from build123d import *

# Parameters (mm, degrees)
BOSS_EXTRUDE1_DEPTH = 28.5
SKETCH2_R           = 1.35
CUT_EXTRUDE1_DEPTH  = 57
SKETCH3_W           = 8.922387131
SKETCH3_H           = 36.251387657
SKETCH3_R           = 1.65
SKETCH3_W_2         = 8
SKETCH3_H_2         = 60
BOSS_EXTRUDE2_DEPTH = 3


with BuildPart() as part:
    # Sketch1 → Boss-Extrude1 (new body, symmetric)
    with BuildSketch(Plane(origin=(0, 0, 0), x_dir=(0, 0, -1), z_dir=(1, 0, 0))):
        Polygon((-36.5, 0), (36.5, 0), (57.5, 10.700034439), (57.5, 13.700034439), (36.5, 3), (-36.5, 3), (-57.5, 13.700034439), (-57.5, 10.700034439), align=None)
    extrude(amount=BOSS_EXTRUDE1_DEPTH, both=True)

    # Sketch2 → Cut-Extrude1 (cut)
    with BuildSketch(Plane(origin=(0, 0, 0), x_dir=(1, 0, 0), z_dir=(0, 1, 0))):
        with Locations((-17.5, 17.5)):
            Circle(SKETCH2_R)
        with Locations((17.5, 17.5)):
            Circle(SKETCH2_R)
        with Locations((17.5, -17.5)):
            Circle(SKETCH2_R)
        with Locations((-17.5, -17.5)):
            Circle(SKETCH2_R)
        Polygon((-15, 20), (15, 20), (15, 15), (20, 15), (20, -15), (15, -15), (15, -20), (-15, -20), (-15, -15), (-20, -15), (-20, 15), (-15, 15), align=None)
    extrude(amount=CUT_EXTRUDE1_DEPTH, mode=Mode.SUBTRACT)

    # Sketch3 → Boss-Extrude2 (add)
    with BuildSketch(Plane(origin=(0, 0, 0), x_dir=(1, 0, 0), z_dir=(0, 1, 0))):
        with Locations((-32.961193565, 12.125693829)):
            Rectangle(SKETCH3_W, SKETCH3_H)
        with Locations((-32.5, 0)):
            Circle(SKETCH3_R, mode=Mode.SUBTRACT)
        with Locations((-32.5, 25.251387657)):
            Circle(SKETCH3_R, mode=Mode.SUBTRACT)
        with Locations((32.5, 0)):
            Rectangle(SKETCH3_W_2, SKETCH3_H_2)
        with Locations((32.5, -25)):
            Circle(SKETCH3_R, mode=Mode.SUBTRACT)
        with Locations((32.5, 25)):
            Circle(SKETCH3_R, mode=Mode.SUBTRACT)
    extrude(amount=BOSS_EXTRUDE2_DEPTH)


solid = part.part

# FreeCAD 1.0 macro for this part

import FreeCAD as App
import Part
import Sketcher
from FreeCAD import Vector
Q = App.Units.Quantity


def add_polygon(sketch, points):
    """Adds a closed chain of lines whose ends are joined by coincident constraints."""
    first, n = sketch.GeometryCount, len(points)
    for a, b in zip(points, points[1:] + points[:1]):
        sketch.addGeometry(Part.LineSegment(App.Vector(*a, 0), App.Vector(*b, 0)), False)
    for i in range(n):
        sketch.addConstraint(Sketcher.Constraint("Coincident", first + i, 2, first + (i + 1) % n, 1))

doc = App.newDocument("Part")
body = doc.addObject("PartDesign::Body", "Body")

# Sketch on YZ plane
sketch1 = body.newObject("Sketcher::SketchObject", "Sketch")
sketch1.AttachmentSupport = (doc.getObject("YZ_Plane"), [""])
sketch1.MapMode = "FlatFace"
add_polygon(sketch1, [(0, 36.5), (0, -36.5), (10.700034, -57.5), (13.700034, -57.5), (3, -36.5), (3, 36.5), (13.700034, 57.5), (10.700034, 57.5)])  # lines 0-7
sketch1.addConstraint(Sketcher.Constraint("Vertical", 0))
sketch1.addConstraint(Sketcher.Constraint("Horizontal", 2))
sketch1.addConstraint(Sketcher.Constraint("Vertical", 4))
sketch1.addConstraint(Sketcher.Constraint("Horizontal", 6))
sketch1.addConstraint(Sketcher.Constraint("Symmetric", 0, 2, 7, 2, -1, 1))
sketch1.addConstraint(Sketcher.Constraint("Symmetric", 2, 2, 5, 2, -1))
sketch1.addConstraint(Sketcher.Constraint("Parallel", 1, 3))
sketch1.addConstraint(Sketcher.Constraint("Parallel", 5, 7))
sketch1.addConstraint(Sketcher.Constraint("Horizontal", 0, 2, 3, 2))
sketch1.addConstraint(Sketcher.Constraint("Horizontal", 4, 2, 7, 2))
sketch1.addConstraint(Sketcher.Constraint("DistanceX", 2, 1, 2, 2, 3.0))
sketch1.addConstraint(Sketcher.Constraint("DistanceY", 0, 2, 0, 1, 73.0))
sketch1.addConstraint(Sketcher.Constraint("Angle", 1, Q("-63 deg")))
sketch1.addConstraint(Sketcher.Constraint("DistanceY", 1, 2, 0, 2, 21.0))
pad1 = body.newObject("PartDesign::Pad", "Pad")
pad1.Profile = sketch1
pad1.Length = 57
pad1.Midplane = True

# Sketch on XZ plane
sketch2 = body.newObject("Sketcher::SketchObject", "Sketch001")
sketch2.AttachmentSupport = (doc.getObject("XZ_Plane"), [""])
sketch2.MapMode = "FlatFace"
sketch2.addGeometry(Part.Circle(Vector(-17.5, -17.5, 0), Vector(0, 0, 1), 1.4), False)  # 0
sketch2.addGeometry(Part.Circle(Vector(17.5, -17.5, 0), Vector(0, 0, 1), 1.4), False)  # 1
sketch2.addGeometry(Part.Circle(Vector(17.5, 17.5, 0), Vector(0, 0, 1), 1.4), False)  # 2
sketch2.addGeometry(Part.Circle(Vector(-17.5, 17.5, 0), Vector(0, 0, 1), 1.4), False)  # 3
add_polygon(sketch2, [(15, -20), (-15, -20), (-15, -15), (-20, -15), (-20, 15), (-15, 15), (-15, 20), (15, 20), (15, 15), (20, 15), (20, -15), (15, -15)])  # lines 4-15
sketch2.addConstraint(Sketcher.Constraint("Horizontal", 4))
sketch2.addConstraint(Sketcher.Constraint("Vertical", 5))
sketch2.addConstraint(Sketcher.Constraint("Horizontal", 6))
sketch2.addConstraint(Sketcher.Constraint("Vertical", 7))
sketch2.addConstraint(Sketcher.Constraint("Horizontal", 8))
sketch2.addConstraint(Sketcher.Constraint("Vertical", 9))
sketch2.addConstraint(Sketcher.Constraint("Horizontal", 10))
sketch2.addConstraint(Sketcher.Constraint("Vertical", 11))
sketch2.addConstraint(Sketcher.Constraint("Horizontal", 12))
sketch2.addConstraint(Sketcher.Constraint("Vertical", 13))
sketch2.addConstraint(Sketcher.Constraint("Horizontal", 14))
sketch2.addConstraint(Sketcher.Constraint("Vertical", 15))
sketch2.addConstraint(Sketcher.Constraint("Equal", 0, 1))
sketch2.addConstraint(Sketcher.Constraint("Equal", 1, 2))
sketch2.addConstraint(Sketcher.Constraint("Equal", 2, 3))
sketch2.addConstraint(Sketcher.Constraint("Symmetric", 0, 3, 2, 3, -1, 1))
sketch2.addConstraint(Sketcher.Constraint("Symmetric", 1, 3, 3, 3, -1, 1))
sketch2.addConstraint(Sketcher.Constraint("Symmetric", 4, 2, 10, 2, -1, 1))
sketch2.addConstraint(Sketcher.Constraint("Symmetric", 6, 2, 12, 2, -1, 1))
sketch2.addConstraint(Sketcher.Constraint("Symmetric", 8, 2, 14, 2, -1, 1))
sketch2.addConstraint(Sketcher.Constraint("Symmetric", 0, 3, 1, 3, -2))
sketch2.addConstraint(Sketcher.Constraint("Symmetric", 8, 2, 11, 2, -2))
sketch2.addConstraint(Sketcher.Constraint("Equal", 14, 5))
sketch2.addConstraint(Sketcher.Constraint("Equal", 10, 7))
sketch2.addConstraint(Sketcher.Constraint("Diameter", 0, 2.7))
sketch2.addConstraint(Sketcher.Constraint("DistanceX", 4, 2, 4, 1, 30.0))
sketch2.addConstraint(Sketcher.Constraint("DistanceX", 6, 2, 6, 1, 5.0))
sketch2.addConstraint(Sketcher.Constraint("DistanceX", 0, 3, 1, 3, 35.0))
sketch2.addConstraint(Sketcher.Constraint("DistanceY", 1, 3, 2, 3, 35.0))
pocket1 = body.newObject("PartDesign::Pocket", "Pocket")
pocket1.Profile = sketch2
pocket1.Length = 57

# Sketch on XZ plane
sketch3 = body.newObject("Sketcher::SketchObject", "Sketch002")
sketch3.AttachmentSupport = (doc.getObject("XZ_Plane"), [""])
sketch3.MapMode = "FlatFace"
add_polygon(sketch3, [(-37.4, -30.3), (-37.4, 6), (-28.5, 6), (-28.5, -30.3)])  # lines 0-3
sketch3.addGeometry(Part.Circle(Vector(-32.5, 0, 0), Vector(0, 0, 1), 1.6), False)  # 4
sketch3.addGeometry(Part.Circle(Vector(-32.5, -25.3, 0), Vector(0, 0, 1), 1.6), False)  # 5
add_polygon(sketch3, [(28.5, -30), (28.5, 30), (36.5, 30), (36.5, -30)])  # lines 6-9
sketch3.addGeometry(Part.Circle(Vector(32.5, 25, 0), Vector(0, 0, 1), 1.6), False)  # 10
sketch3.addGeometry(Part.Circle(Vector(32.5, -25, 0), Vector(0, 0, 1), 1.6), False)  # 11
sketch3.addConstraint(Sketcher.Constraint("Vertical", 0))
sketch3.addConstraint(Sketcher.Constraint("Horizontal", 1))
sketch3.addConstraint(Sketcher.Constraint("Vertical", 2))
sketch3.addConstraint(Sketcher.Constraint("Horizontal", 3))
sketch3.addConstraint(Sketcher.Constraint("Vertical", 6))
sketch3.addConstraint(Sketcher.Constraint("Horizontal", 7))
sketch3.addConstraint(Sketcher.Constraint("Vertical", 8))
sketch3.addConstraint(Sketcher.Constraint("Horizontal", 9))
sketch3.addConstraint(Sketcher.Constraint("Equal", 4, 5))
sketch3.addConstraint(Sketcher.Constraint("Equal", 5, 10))
sketch3.addConstraint(Sketcher.Constraint("Equal", 10, 11))
sketch3.addConstraint(Sketcher.Constraint("Symmetric", 10, 3, 11, 3, -1))
sketch3.addConstraint(Sketcher.Constraint("PointOnObject", 4, 3, -1))
sketch3.addConstraint(Sketcher.Constraint("Vertical", 4, 3, 5, 3))
sketch3.addConstraint(Sketcher.Constraint("Diameter", 4, 3.3))
sketch3.addConstraint(Sketcher.Constraint("DistanceX", 7, 1, 7, 2, 8.0))
sketch3.addConstraint(Sketcher.Constraint("DistanceY", 6, 1, 6, 2, 60.0))
sketch3.addConstraint(Sketcher.Constraint("DistanceY", -1, 1, 10, 3, 25.0))
sketch3.addConstraint(Sketcher.Constraint("DistanceY", -1, 1, 0, 2, 6.0))
sketch3.addConstraint(Sketcher.Constraint("DistanceY", -1, 1, 6, 2, 30.0))
sketch3.addConstraint(Sketcher.Constraint("DistanceX", 4, 3, 10, 3, 65.0))
sketch3.addConstraint(Sketcher.Constraint("DistanceX", 4, 3, 1, 2, 4.0))
sketch3.addConstraint(Sketcher.Constraint("DistanceY", 2, 2, 5, 3, 5.0))
sketch3.addConstraint(Sketcher.Constraint("DistanceX", 6, 2, 10, 3, 4.0))
sketch3.addConstraint(Sketcher.Constraint("DistanceX", 4, 3, -1, 1, 32.5))
sketch3.addConstraint(Sketcher.Constraint("DistanceX", 1, 1, 1, 2, 8.922387))
sketch3.addConstraint(Sketcher.Constraint("DistanceY", 0, 1, 0, 2, 36.251388))
pad2 = body.newObject("PartDesign::Pad", "Pad001")
pad2.Profile = sketch3
pad2.Length = 3
pad2.Reversed = True

doc.recompute()
